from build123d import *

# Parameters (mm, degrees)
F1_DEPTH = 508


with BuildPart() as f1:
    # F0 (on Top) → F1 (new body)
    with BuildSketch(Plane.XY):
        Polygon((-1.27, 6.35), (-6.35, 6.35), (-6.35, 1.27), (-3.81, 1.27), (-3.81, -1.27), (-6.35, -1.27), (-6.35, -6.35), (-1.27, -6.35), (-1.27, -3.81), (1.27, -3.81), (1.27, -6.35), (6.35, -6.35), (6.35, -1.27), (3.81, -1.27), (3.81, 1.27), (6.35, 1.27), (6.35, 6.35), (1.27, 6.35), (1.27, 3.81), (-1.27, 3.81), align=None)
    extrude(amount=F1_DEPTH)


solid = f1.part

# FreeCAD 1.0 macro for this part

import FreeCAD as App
import Part
import Sketcher

V = App.Vector
Q = App.Units.Quantity

doc = App.newDocument("Part")
body = doc.addObject("PartDesign::Body", "Body")

# Sketch on XY plane
sketch1 = body.newObject("Sketcher::SketchObject", "Sketch")
sketch1.AttachmentSupport = (doc.getObject("XY_Plane"), [""])
sketch1.MapMode = "FlatFace"
sketch1.addGeometry([
    Part.LineSegment(V(-1.3, 6.3, 0), V(-6.3, 6.3, 0)),  # 0
    Part.LineSegment(V(-6.3, 6.3, 0), V(-6.3, 1.3, 0)),  # 1
    Part.LineSegment(V(-6.3, 1.3, 0), V(-3.8, 1.3, 0)),  # 2
    Part.LineSegment(V(-3.8, 1.3, 0), V(-3.8, -1.3, 0)),  # 3
    Part.LineSegment(V(-3.8, -1.3, 0), V(-6.3, -1.3, 0)),  # 4
    Part.LineSegment(V(-6.3, -1.3, 0), V(-6.3, -6.3, 0)),  # 5
    Part.LineSegment(V(-6.3, -6.3, 0), V(-1.3, -6.3, 0)),  # 6
    Part.LineSegment(V(-1.3, -6.3, 0), V(-1.3, -3.8, 0)),  # 7
    Part.LineSegment(V(-1.3, -3.8, 0), V(1.3, -3.8, 0)),  # 8
    Part.LineSegment(V(1.3, -3.8, 0), V(1.3, -6.3, 0)),  # 9
    Part.LineSegment(V(1.3, -6.3, 0), V(6.3, -6.3, 0)),  # 10
    Part.LineSegment(V(6.3, -6.3, 0), V(6.3, -1.3, 0)),  # 11
    Part.LineSegment(V(6.3, -1.3, 0), V(3.8, -1.3, 0)),  # 12
    Part.LineSegment(V(3.8, -1.3, 0), V(3.8, 1.3, 0)),  # 13
    Part.LineSegment(V(3.8, 1.3, 0), V(6.3, 1.3, 0)),  # 14
    Part.LineSegment(V(6.3, 1.3, 0), V(6.3, 6.3, 0)),  # 15
    Part.LineSegment(V(6.3, 6.3, 0), V(1.3, 6.3, 0)),  # 16
    Part.LineSegment(V(1.3, 6.3, 0), V(1.3, 3.8, 0)),  # 17
    Part.LineSegment(V(1.3, 3.8, 0), V(-1.3, 3.8, 0)),  # 18
    Part.LineSegment(V(-1.3, 3.8, 0), V(-1.3, 6.3, 0)),  # 19
], False)
sketch1.addConstraint([
    Sketcher.Constraint("Coincident", 0, 2, 1, 1),
    Sketcher.Constraint("Coincident", 1, 2, 2, 1),
    Sketcher.Constraint("Coincident", 2, 2, 3, 1),
    Sketcher.Constraint("Coincident", 3, 2, 4, 1),
    Sketcher.Constraint("Coincident", 4, 2, 5, 1),
    Sketcher.Constraint("Coincident", 5, 2, 6, 1),
    Sketcher.Constraint("Coincident", 6, 2, 7, 1),
    Sketcher.Constraint("Coincident", 7, 2, 8, 1),
    Sketcher.Constraint("Coincident", 8, 2, 9, 1),
    Sketcher.Constraint("Coincident", 9, 2, 10, 1),
    Sketcher.Constraint("Coincident", 10, 2, 11, 1),
    Sketcher.Constraint("Coincident", 11, 2, 12, 1),
    Sketcher.Constraint("Coincident", 12, 2, 13, 1),
    Sketcher.Constraint("Coincident", 13, 2, 14, 1),
    Sketcher.Constraint("Coincident", 14, 2, 15, 1),
    Sketcher.Constraint("Coincident", 15, 2, 16, 1),
    Sketcher.Constraint("Coincident", 16, 2, 17, 1),
    Sketcher.Constraint("Coincident", 17, 2, 18, 1),
    Sketcher.Constraint("Coincident", 18, 2, 19, 1),
    Sketcher.Constraint("Coincident", 19, 2, 0, 1),
    Sketcher.Constraint("Horizontal", 0),
    Sketcher.Constraint("Vertical", 1),
    Sketcher.Constraint("Horizontal", 2),
    Sketcher.Constraint("Vertical", 3),
    Sketcher.Constraint("Horizontal", 4),
    Sketcher.Constraint("Vertical", 5),
    Sketcher.Constraint("Horizontal", 6),
    Sketcher.Constraint("Vertical", 7),
    Sketcher.Constraint("Horizontal", 8),
    Sketcher.Constraint("Vertical", 9),
    Sketcher.Constraint("Horizontal", 10),
    Sketcher.Constraint("Vertical", 11),
    Sketcher.Constraint("Horizontal", 12),
    Sketcher.Constraint("Vertical", 13),
    Sketcher.Constraint("Horizontal", 14),
    Sketcher.Constraint("Vertical", 15),
    Sketcher.Constraint("Horizontal", 16),
    Sketcher.Constraint("Vertical", 17),
    Sketcher.Constraint("Horizontal", 18),
    Sketcher.Constraint("Vertical", 19),
    Sketcher.Constraint("Symmetric", 0, 2, 10, 2, -1, 1),
    Sketcher.Constraint("Symmetric", 2, 2, 12, 2, -1, 1),
    Sketcher.Constraint("Symmetric", 4, 2, 14, 2, -1, 1),
    Sketcher.Constraint("Symmetric", 6, 2, 16, 2, -1, 1),
    Sketcher.Constraint("Symmetric", 8, 2, 18, 2, -1, 1),
    Sketcher.Constraint("Symmetric", 6, 2, 9, 2, -2),
    Sketcher.Constraint("Symmetric", 4, 2, 11, 2, -2),
    Sketcher.Constraint("Equal", 4, 8),
    Sketcher.Constraint("Equal", 16, 1),
    Sketcher.Constraint("Equal", 18, 3),
    Sketcher.Constraint("Equal", 3, 7),
    Sketcher.Constraint("DistanceX", 0, 2, 0, 1, Q("0.2 in")),
    Sketcher.Constraint("DistanceX", 2, 1, 2, 2, Q("0.1 in")),
])
pad1 = body.newObject("PartDesign::Pad", "Pad")
pad1.Profile = sketch1
pad1.Length = Q("20 in")

doc.recompute()
